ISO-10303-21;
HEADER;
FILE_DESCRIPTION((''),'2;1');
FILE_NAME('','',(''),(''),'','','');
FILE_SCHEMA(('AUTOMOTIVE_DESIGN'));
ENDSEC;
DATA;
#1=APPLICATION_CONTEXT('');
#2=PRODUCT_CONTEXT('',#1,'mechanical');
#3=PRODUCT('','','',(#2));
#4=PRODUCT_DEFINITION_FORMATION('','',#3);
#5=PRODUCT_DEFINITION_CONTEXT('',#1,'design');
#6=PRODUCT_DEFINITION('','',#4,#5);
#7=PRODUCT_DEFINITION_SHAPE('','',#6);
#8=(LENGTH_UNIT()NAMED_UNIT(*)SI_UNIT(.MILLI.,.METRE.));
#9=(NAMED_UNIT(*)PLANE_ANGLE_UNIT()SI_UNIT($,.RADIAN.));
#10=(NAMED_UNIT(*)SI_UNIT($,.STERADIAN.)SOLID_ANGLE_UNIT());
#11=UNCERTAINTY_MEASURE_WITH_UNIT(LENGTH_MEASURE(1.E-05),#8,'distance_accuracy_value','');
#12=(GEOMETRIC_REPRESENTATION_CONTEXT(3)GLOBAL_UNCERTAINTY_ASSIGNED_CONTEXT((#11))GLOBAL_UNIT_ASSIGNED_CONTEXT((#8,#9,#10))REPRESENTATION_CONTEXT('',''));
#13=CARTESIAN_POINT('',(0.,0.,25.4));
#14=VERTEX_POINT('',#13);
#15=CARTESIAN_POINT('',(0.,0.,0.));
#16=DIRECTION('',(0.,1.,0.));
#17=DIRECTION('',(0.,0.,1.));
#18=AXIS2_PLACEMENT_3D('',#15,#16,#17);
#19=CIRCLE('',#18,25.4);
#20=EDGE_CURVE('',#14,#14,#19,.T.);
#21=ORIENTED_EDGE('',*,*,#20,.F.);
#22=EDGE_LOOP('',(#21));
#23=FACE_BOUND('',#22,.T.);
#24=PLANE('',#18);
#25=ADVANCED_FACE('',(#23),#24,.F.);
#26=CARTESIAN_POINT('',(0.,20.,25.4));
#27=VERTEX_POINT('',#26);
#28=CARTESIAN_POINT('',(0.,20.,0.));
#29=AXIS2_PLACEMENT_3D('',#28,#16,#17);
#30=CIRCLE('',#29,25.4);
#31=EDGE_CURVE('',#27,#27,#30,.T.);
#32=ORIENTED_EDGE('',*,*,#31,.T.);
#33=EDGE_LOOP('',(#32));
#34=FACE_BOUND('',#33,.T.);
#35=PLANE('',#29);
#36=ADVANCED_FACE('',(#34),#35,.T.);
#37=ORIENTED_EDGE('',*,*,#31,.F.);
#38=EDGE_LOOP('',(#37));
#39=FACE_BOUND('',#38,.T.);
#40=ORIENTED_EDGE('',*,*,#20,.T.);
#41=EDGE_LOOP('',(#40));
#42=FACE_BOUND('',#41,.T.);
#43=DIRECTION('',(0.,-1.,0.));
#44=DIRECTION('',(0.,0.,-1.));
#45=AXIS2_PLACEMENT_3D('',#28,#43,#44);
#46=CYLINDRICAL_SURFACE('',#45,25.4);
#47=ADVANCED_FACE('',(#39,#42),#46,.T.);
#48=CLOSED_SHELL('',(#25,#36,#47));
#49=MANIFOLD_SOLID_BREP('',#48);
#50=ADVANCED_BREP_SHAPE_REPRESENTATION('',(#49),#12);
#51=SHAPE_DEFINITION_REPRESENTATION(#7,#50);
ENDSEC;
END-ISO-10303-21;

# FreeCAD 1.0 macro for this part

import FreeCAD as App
import Part
import Sketcher

doc = App.newDocument("Part")
body = doc.addObject("PartDesign::Body", "Body")

# Sketch on XZ plane
sketch1 = body.newObject("Sketcher::SketchObject", "Sketch")
sketch1.AttachmentSupport = (doc.getObject("XZ_Plane"), [""])
sketch1.MapMode = "FlatFace"
sketch1.addGeometry(Part.Circle(App.Vector(0, 0, 0), App.Vector(0, 0, 1), 25.4), False)
sketch1.addConstraint([
    Sketcher.Constraint("Coincident", 0, 3, -1, 1),
    Sketcher.Constraint("Diameter", 0, 50.8),
])
pad1 = body.newObject("PartDesign::Pad", "Pad")
pad1.Profile = sketch1
pad1.Length = 20
pad1.Reversed = True

doc.recompute()
